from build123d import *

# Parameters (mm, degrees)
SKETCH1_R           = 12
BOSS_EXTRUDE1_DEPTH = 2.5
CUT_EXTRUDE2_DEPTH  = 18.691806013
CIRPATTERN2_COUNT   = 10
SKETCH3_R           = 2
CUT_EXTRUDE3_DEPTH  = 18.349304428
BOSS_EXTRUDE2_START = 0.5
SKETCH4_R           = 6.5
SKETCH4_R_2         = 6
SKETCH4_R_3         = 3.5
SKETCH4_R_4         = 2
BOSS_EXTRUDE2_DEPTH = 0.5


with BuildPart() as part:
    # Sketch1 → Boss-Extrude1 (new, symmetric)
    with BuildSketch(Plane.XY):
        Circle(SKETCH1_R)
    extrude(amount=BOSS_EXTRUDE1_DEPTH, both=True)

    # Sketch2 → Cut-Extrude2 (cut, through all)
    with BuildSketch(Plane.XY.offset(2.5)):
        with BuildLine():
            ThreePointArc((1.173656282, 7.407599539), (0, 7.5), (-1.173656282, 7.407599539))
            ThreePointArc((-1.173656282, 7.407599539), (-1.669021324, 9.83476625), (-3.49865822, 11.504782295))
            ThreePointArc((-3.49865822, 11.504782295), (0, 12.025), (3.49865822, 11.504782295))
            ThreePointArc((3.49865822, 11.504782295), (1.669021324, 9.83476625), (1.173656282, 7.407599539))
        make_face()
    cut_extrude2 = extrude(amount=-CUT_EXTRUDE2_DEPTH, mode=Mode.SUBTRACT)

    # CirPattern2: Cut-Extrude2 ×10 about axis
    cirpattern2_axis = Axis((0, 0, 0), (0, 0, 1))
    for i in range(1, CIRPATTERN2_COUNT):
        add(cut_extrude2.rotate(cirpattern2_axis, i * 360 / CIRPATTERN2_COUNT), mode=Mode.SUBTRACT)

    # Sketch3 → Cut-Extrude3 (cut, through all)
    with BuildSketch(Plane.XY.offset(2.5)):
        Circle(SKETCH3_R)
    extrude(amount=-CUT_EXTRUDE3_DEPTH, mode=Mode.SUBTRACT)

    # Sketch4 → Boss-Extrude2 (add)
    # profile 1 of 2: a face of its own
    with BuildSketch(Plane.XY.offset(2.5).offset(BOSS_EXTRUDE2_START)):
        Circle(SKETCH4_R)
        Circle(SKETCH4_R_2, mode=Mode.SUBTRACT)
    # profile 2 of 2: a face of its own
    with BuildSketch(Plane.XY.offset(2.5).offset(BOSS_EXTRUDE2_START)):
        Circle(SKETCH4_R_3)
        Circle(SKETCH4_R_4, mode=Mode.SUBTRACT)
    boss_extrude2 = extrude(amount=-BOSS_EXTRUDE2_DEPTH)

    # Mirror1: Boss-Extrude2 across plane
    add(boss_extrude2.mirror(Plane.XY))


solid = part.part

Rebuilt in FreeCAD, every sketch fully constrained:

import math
import FreeCAD as App
import Part
import Sketcher
from FreeCAD import Vector
Q = App.Units.Quantity

doc = App.newDocument("Part")
body = doc.addObject("PartDesign::Body", "Body")

sketch1 = body.newObject("Sketcher::SketchObject", "Sketch")
sketch1.AttachmentSupport = (doc.getObject("XY_Plane"), [""])
sketch1.MapMode = "FlatFace"
sketch1.addGeometry(Part.Circle(Vector(0, 0, 0), Vector(0, 0, 1), 12), False)
sketch1.addConstraint([
    Sketcher.Constraint("Coincident", 0, 3, -1, 1),
    Sketcher.Constraint("Diameter", 0, Q("24 mm")),
])
pad1 = body.newObject("PartDesign::Pad", "Pad")
pad1.Profile = sketch1
pad1.Length = 5
pad1.Midplane = True

sketch2 = body.newObject("Sketcher::SketchObject", "Sketch001")
sketch2.AttachmentSupport = (doc.getObject("XY_Plane"), [""])
sketch2.MapMode = "FlatFace"
sketch2.AttachmentOffset = App.Placement(Vector(0, 0, 2.5), App.Rotation())
sketch2.addGeometry([
    Part.ArcOfCircle(Part.Circle(Vector(0, 0, 0), Vector(0, 0, 1), 7.5), math.radians(80.996923), math.radians(99.003077)),
    Part.ArcOfCircle(Part.Circle(Vector(5.14792, 7.860618, 0), Vector(0, 0, 1), 4), math.radians(114.350375), math.radians(186.502962)),
    Part.ArcOfCircle(Part.Circle(Vector(0, 0, 0), Vector(0, 0, 1), 12.025), math.radians(73.085238), math.radians(106.914762)),
    Part.ArcOfCircle(Part.Circle(Vector(-5.14792, 7.860618, 0), Vector(0, 0, 1), 4), math.radians(-6.502962), math.radians(65.649625)),
], False)
sketch2.addConstraint([
    Sketcher.Constraint("Coincident", 0, 1, 1, 2),
    Sketcher.Constraint("Coincident", 1, 1, 2, 1),
    Sketcher.Constraint("Coincident", 2, 2, 3, 2),
    Sketcher.Constraint("Coincident", 3, 1, 0, 2),
    Sketcher.Constraint("Coincident", 0, 3, -1, 1),
    Sketcher.Constraint("Coincident", 2, 3, -1, 1),
    Sketcher.Constraint("Equal", 1, 3),
    Sketcher.Constraint("Symmetric", 1, 3, 3, 3, -2),
    Sketcher.Constraint("Radius", 1, Q("4 mm")),
    Sketcher.Constraint("Radius", 0, Q("7.5 mm")),
    Sketcher.Constraint("Radius", 2, Q("12.025 mm")),
    Sketcher.Constraint("DistanceX", 0, 1, 1, 1, Q("2.325002 mm")),
    Sketcher.Constraint("DistanceY", -1, 1, 0, 1, Q("7.4076 mm")),
])
pocket1 = body.newObject("PartDesign::Pocket", "Pocket")
pocket1.Profile = sketch2
pocket1.Type = "ThroughAll"
doc.recompute()

polarpattern = body.newObject("PartDesign::PolarPattern", "PolarPattern")
polarpattern.Originals = [pocket1]
polarpattern.Axis = (doc.getObject("Z_Axis"), [""])
polarpattern.Angle = 360
polarpattern.Occurrences = 10
body.Tip = polarpattern

sketch3 = body.newObject("Sketcher::SketchObject", "Sketch002")
sketch3.AttachmentSupport = (doc.getObject("XY_Plane"), [""])
sketch3.MapMode = "FlatFace"
sketch3.AttachmentOffset = App.Placement(Vector(0, 0, 2.5), App.Rotation())
sketch3.addGeometry(Part.Circle(Vector(0, 0, 0), Vector(0, 0, 1), 2), False)
sketch3.addConstraint([
    Sketcher.Constraint("Coincident", 0, 3, -1, 1),
    Sketcher.Constraint("Diameter", 0, Q("4 mm")),
])
pocket2 = body.newObject("PartDesign::Pocket", "Pocket001")
pocket2.Profile = sketch3
pocket2.Type = "ThroughAll"

sketch4 = body.newObject("Sketcher::SketchObject", "Sketch003")
sketch4.AttachmentSupport = (doc.getObject("XY_Plane"), [""])
sketch4.MapMode = "FlatFace"
sketch4.AttachmentOffset = App.Placement(Vector(0, 0, 3), App.Rotation())
sketch4.addGeometry([
    Part.Circle(Vector(0, 0, 0), Vector(0, 0, 1), 6.5),
    Part.Circle(Vector(0, 0, 0), Vector(0, 0, 1), 6),
    Part.Circle(Vector(0, 0, 0), Vector(0, 0, 1), 3.5),
    Part.Circle(Vector(0, 0, 0), Vector(0, 0, 1), 2),
], False)
sketch4.addConstraint([
    Sketcher.Constraint("Coincident", 0, 3, -1, 1),
    Sketcher.Constraint("Coincident", 1, 3, -1, 1),
    Sketcher.Constraint("Coincident", 2, 3, -1, 1),
    Sketcher.Constraint("Coincident", 3, 3, -1, 1),
    Sketcher.Constraint("Diameter", 0, Q("13 mm")),
    Sketcher.Constraint("Diameter", 1, Q("12 mm")),
    Sketcher.Constraint("Diameter", 2, Q("7 mm")),
    Sketcher.Constraint("Diameter", 3, Q("4 mm")),
])
pad2 = body.newObject("PartDesign::Pad", "Pad001")
pad2.Profile = sketch4
pad2.Length = 0.5
pad2.Reversed = True
doc.recompute()

mirrored = body.newObject("PartDesign::Mirrored", "Mirrored")
mirrored.Originals = [pad2]
mirrored.MirrorPlane = (doc.getObject("XY_Plane"), [""])
body.Tip = mirrored

doc.recompute()
